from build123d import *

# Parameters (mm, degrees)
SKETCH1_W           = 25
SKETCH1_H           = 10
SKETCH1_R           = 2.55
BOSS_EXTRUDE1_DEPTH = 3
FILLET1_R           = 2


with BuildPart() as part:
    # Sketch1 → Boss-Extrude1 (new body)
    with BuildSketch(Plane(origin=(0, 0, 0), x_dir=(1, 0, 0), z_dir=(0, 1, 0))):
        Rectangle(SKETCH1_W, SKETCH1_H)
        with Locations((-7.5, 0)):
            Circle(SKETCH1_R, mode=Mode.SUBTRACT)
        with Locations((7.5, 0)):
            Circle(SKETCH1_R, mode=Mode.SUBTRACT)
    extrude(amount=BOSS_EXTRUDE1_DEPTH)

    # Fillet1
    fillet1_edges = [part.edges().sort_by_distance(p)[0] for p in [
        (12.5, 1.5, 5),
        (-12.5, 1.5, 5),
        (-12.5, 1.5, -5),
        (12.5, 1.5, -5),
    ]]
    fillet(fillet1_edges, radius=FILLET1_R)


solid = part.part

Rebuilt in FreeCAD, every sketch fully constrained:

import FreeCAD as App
import Part
import Sketcher

V = App.Vector


def edges_at(feature, points):
    """Names of the edges that pass closest to the given points."""
    edges = feature.Shape.Edges
    near = lambda p: min(range(len(edges)), key=lambda i: edges[i].distToShape(Part.Vertex(*p))[0])
    return sorted({f"Edge{near(p) + 1}" for p in points})

doc = App.newDocument("Part")
body = doc.addObject("PartDesign::Body", "Body")

sketch1 = body.newObject("Sketcher::SketchObject", "Sketch")
sketch1.AttachmentSupport = (doc.getObject("XZ_Plane"), [""])
sketch1.MapMode = "FlatFace"
sketch1.addGeometry(Part.LineSegment(V(-12.5, -5, 0), V(-12.5, 5, 0)), False)
sketch1.addGeometry(Part.LineSegment(V(-12.5, 5, 0), V(12.5, 5, 0)), False)
sketch1.addGeometry(Part.LineSegment(V(12.5, 5, 0), V(12.5, -5, 0)), False)
sketch1.addGeometry(Part.LineSegment(V(12.5, -5, 0), V(-12.5, -5, 0)), False)
sketch1.addGeometry(Part.Circle(V(-7.5, 0, 0), V(0, 0, 1), 2.5), False)
sketch1.addGeometry(Part.Circle(V(7.5, 0, 0), V(0, 0, 1), 2.5), False)
sketch1.addConstraint(Sketcher.Constraint("Coincident", 0, 2, 1, 1))
sketch1.addConstraint(Sketcher.Constraint("Coincident", 1, 2, 2, 1))
sketch1.addConstraint(Sketcher.Constraint("Coincident", 2, 2, 3, 1))
sketch1.addConstraint(Sketcher.Constraint("Coincident", 3, 2, 0, 1))
sketch1.addConstraint(Sketcher.Constraint("Vertical", 0))
sketch1.addConstraint(Sketcher.Constraint("Horizontal", 1))
sketch1.addConstraint(Sketcher.Constraint("Vertical", 2))
sketch1.addConstraint(Sketcher.Constraint("Horizontal", 3))
sketch1.addConstraint(Sketcher.Constraint("Equal", 4, 5))
sketch1.addConstraint(Sketcher.Constraint("Symmetric", 4, 3, 5, 3, -1, 1))
sketch1.addConstraint(Sketcher.Constraint("Symmetric", 0, 2, 2, 2, -1, 1))
sketch1.addConstraint(Sketcher.Constraint("PointOnObject", 4, 3, -1))
sketch1.addConstraint(Sketcher.Constraint("Diameter", 4, 5.1))
sketch1.addConstraint(Sketcher.Constraint("DistanceX", 1, 1, 1, 2, 25.0))
sketch1.addConstraint(Sketcher.Constraint("DistanceY", 0, 1, 0, 2, 10.0))
sketch1.addConstraint(Sketcher.Constraint("DistanceX", 4, 3, 5, 3, 15.0))
pad1 = body.newObject("PartDesign::Pad", "Pad")
pad1.Profile = sketch1
pad1.Length = 3
pad1.Reversed = True
doc.recompute()

fillet = body.newObject("PartDesign::Fillet", "Fillet")
fillet.Base = (pad1, edges_at(pad1, [
    (12.5, 1.5, 5),
    (-12.5, 1.5, 5),
    (-12.5, 1.5, -5),
    (12.5, 1.5, -5),
]))
fillet.Radius = 2

doc.recompute()
